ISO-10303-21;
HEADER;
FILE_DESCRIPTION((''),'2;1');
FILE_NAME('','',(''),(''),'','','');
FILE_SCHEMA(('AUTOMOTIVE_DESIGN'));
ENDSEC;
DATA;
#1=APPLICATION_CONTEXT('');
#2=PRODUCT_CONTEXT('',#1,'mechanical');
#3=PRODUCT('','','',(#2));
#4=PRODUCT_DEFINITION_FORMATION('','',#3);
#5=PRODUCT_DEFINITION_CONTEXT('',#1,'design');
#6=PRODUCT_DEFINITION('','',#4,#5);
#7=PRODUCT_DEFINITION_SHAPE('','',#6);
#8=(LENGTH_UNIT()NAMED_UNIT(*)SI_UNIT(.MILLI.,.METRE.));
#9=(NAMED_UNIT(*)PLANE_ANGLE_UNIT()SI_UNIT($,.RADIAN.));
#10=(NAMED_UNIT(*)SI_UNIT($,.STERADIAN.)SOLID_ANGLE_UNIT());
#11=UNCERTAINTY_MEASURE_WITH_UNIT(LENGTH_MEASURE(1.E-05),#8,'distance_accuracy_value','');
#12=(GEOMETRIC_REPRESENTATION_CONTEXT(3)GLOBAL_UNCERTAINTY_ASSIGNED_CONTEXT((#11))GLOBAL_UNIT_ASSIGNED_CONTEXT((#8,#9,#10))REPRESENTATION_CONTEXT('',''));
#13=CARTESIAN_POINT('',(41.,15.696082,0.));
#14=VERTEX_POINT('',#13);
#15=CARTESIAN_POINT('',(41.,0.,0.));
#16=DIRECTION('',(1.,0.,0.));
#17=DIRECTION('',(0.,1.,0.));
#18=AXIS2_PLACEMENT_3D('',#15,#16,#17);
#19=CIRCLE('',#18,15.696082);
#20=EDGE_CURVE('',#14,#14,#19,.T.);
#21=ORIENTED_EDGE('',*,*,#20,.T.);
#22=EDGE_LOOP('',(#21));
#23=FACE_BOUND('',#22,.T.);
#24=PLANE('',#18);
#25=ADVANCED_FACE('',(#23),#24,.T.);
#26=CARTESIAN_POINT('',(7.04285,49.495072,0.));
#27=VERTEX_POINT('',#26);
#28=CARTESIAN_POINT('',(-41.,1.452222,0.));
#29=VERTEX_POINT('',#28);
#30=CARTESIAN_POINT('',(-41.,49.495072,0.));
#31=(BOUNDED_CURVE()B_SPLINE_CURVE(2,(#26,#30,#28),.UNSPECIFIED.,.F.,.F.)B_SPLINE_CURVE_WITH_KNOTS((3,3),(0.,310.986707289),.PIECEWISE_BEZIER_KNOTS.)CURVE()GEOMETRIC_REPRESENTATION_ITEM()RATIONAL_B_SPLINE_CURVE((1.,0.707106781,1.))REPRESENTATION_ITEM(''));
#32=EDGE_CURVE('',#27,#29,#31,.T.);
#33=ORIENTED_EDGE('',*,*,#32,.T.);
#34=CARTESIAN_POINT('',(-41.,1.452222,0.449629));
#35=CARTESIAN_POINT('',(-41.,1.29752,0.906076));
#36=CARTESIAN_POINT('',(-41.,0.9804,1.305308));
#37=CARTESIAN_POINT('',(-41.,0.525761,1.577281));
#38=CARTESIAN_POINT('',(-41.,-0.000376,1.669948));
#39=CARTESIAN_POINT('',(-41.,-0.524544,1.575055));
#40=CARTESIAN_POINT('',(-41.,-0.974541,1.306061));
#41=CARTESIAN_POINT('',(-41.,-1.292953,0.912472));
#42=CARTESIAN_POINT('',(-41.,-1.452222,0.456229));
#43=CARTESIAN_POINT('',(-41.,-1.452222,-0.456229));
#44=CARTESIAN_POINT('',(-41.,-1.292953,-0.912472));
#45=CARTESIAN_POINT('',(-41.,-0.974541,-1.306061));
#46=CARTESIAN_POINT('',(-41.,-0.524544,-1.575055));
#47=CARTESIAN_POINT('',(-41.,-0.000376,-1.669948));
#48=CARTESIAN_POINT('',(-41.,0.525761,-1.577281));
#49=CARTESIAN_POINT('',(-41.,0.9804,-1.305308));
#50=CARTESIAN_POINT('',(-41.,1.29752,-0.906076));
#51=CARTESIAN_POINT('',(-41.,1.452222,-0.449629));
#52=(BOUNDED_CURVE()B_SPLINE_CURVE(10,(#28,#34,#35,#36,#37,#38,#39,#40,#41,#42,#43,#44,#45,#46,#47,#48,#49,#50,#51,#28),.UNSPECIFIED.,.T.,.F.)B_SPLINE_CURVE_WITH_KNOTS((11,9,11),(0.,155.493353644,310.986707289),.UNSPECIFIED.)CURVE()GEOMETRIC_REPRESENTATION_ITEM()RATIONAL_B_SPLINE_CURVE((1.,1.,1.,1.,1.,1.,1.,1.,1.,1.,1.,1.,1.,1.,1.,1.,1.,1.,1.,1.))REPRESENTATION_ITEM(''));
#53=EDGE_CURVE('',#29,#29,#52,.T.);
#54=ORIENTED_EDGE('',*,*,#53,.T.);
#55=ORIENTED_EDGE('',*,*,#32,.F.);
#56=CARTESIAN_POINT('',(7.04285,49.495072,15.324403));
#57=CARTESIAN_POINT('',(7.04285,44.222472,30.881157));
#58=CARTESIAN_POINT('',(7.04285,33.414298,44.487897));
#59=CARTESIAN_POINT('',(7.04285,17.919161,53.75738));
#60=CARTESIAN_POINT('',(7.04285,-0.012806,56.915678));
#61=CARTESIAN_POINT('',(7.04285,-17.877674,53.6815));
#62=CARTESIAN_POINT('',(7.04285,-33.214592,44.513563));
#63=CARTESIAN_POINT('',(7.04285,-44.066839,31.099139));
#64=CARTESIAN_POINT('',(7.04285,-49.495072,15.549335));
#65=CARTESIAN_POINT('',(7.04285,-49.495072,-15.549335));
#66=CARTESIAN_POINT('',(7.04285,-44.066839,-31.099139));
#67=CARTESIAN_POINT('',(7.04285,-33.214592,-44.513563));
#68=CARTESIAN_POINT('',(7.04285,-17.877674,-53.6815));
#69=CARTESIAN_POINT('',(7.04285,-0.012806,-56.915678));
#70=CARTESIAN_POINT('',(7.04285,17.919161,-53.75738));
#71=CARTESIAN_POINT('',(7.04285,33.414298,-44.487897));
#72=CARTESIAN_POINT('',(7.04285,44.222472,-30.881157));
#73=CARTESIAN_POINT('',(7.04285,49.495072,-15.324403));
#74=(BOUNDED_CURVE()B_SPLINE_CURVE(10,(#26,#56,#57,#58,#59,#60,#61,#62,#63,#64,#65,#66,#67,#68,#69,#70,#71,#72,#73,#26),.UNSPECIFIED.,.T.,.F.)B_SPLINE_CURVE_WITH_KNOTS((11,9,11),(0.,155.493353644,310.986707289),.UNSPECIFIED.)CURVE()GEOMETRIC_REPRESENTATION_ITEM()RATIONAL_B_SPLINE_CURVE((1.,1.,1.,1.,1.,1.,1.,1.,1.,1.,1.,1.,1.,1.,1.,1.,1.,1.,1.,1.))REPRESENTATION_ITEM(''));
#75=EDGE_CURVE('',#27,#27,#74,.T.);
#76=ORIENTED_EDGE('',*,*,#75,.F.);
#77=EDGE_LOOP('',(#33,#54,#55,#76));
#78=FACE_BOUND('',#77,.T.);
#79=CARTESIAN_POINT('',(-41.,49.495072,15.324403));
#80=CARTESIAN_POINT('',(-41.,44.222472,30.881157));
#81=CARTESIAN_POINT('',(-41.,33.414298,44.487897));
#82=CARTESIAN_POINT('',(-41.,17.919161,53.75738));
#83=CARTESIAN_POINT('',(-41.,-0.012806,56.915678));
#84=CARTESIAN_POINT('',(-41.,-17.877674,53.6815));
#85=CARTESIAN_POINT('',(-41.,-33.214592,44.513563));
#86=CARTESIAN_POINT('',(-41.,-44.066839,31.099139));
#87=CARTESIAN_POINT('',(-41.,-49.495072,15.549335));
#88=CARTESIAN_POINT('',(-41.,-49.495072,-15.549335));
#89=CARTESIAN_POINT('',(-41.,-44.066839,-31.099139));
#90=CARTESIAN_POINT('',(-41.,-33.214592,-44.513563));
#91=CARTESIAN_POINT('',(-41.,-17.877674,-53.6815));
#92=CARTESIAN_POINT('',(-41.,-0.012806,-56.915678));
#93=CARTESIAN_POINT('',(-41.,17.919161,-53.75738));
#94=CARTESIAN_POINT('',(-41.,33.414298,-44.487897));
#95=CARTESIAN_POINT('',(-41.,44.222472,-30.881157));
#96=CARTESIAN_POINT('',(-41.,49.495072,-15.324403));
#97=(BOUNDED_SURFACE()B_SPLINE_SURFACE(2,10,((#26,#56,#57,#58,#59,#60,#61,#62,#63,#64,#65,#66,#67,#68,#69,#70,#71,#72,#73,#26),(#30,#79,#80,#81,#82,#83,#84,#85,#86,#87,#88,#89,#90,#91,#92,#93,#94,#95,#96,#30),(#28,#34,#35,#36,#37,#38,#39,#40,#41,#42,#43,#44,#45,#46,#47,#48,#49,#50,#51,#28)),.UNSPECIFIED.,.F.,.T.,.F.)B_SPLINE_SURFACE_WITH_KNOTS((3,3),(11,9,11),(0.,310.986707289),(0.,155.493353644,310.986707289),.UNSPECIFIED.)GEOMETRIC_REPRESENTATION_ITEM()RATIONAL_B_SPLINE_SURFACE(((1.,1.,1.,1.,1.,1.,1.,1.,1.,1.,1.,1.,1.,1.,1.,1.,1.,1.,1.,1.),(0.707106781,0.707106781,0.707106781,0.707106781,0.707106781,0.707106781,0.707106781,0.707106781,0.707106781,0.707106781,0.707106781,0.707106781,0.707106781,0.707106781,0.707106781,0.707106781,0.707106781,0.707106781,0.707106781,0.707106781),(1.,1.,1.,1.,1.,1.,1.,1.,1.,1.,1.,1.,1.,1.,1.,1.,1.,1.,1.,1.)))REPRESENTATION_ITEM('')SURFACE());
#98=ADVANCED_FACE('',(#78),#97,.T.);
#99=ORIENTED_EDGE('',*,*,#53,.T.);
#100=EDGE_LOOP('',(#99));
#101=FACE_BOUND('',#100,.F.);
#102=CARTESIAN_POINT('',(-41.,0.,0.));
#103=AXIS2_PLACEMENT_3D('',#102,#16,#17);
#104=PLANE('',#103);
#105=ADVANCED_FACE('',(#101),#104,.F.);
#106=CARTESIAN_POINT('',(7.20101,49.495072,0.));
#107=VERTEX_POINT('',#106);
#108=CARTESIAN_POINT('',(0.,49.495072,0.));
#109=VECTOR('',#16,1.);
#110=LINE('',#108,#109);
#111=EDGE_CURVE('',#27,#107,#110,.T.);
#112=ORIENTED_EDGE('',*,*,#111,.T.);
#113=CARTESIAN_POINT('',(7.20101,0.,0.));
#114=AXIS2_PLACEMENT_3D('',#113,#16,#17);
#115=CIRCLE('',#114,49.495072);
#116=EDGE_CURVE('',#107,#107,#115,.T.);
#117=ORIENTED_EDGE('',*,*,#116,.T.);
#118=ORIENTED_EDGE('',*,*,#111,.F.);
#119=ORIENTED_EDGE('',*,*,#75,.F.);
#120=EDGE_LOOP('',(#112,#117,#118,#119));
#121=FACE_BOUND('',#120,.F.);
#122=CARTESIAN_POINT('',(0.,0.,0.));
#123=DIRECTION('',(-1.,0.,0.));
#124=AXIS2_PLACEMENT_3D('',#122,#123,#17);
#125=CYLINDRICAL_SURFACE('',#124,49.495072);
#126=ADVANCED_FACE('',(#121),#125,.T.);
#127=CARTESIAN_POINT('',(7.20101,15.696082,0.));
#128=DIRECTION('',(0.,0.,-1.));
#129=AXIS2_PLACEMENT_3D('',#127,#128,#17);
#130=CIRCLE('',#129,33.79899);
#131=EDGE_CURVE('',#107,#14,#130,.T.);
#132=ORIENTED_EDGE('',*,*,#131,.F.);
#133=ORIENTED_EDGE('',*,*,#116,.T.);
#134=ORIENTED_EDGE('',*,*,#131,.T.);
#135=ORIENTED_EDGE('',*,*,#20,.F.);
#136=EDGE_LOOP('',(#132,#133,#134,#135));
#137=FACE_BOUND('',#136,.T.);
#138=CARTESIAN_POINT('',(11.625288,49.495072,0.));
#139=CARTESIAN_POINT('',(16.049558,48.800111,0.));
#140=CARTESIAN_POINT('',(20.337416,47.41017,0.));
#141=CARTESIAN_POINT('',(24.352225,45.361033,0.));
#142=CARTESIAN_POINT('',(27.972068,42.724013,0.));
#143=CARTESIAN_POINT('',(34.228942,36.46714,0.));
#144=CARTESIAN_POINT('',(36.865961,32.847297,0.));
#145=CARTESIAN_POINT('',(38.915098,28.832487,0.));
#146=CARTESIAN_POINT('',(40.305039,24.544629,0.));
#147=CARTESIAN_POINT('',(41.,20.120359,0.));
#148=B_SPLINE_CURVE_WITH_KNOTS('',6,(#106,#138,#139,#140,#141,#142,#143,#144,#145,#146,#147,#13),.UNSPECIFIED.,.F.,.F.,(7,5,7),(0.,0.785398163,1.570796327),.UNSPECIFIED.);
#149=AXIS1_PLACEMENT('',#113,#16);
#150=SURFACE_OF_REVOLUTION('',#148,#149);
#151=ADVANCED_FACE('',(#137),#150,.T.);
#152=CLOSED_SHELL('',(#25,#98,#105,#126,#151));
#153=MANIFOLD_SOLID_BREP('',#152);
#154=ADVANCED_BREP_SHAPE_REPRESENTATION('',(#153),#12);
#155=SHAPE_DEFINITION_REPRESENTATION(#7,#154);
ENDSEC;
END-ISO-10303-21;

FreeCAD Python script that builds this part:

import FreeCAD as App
import Part
import Sketcher
from FreeCAD import Vector
Q = App.Units.Quantity


def edges_at(feature, points):
    """Names of the edges that pass closest to the given points."""
    edges = feature.Shape.Edges
    near = lambda p: min(range(len(edges)), key=lambda i: edges[i].distToShape(Part.Vertex(*p))[0])
    return sorted({f"Edge{near(p) + 1}" for p in points})

doc = App.newDocument("Part")
params = doc.addObject("Spreadsheet::Sheet", "Params")
for row, (alias, value) in enumerate([
    ("pad1_length", "41 mm"),
    ("pad1_length2", "41 mm"),
    ("fillet_radius", "48.04285 mm"),
    ("fillet2_radius", "33.79899 mm"),
], start=1):
    params.set(f"A{row}", alias)
    params.set(f"B{row}", "=" + value)
    params.setAlias(f"B{row}", alias)

body = doc.addObject("PartDesign::Body", "Body")

# Sketch on YZ plane
sketch1 = body.newObject("Sketcher::SketchObject", "Sketch")
sketch1.AttachmentSupport = (doc.getObject("YZ_Plane"), [""])
sketch1.MapMode = "FlatFace"
sketch1.addGeometry(Part.Circle(Vector(0, 0, 0), Vector(0, 0, 1), 49.495072), False)
sketch1.addConstraint(Sketcher.Constraint("Coincident", 0, 3, -1, 1))
sketch1.addConstraint(Sketcher.Constraint("Diameter", 0, Q("98.990143 mm")))
pad1 = body.newObject("PartDesign::Pad", "Pad")
pad1.Profile = sketch1
pad1.Type = "TwoLengths"
pad1.setExpression("Length", "Params.pad1_length")
pad1.setExpression("Length2", "Params.pad1_length2")
pad1.Reversed = True
doc.recompute()

fillet = body.newObject("PartDesign::Fillet", "Fillet")
fillet.Base = (pad1, edges_at(pad1, [(-41, -49.495, 0)]))
fillet.setExpression("Radius", "Params.fillet_radius")
doc.recompute()

fillet2 = body.newObject("PartDesign::Fillet", "Fillet001")
fillet2.Base = (fillet, edges_at(fillet, [(41, -49.495, 0)]))
fillet2.setExpression("Radius", "Params.fillet2_radius")

doc.recompute()
